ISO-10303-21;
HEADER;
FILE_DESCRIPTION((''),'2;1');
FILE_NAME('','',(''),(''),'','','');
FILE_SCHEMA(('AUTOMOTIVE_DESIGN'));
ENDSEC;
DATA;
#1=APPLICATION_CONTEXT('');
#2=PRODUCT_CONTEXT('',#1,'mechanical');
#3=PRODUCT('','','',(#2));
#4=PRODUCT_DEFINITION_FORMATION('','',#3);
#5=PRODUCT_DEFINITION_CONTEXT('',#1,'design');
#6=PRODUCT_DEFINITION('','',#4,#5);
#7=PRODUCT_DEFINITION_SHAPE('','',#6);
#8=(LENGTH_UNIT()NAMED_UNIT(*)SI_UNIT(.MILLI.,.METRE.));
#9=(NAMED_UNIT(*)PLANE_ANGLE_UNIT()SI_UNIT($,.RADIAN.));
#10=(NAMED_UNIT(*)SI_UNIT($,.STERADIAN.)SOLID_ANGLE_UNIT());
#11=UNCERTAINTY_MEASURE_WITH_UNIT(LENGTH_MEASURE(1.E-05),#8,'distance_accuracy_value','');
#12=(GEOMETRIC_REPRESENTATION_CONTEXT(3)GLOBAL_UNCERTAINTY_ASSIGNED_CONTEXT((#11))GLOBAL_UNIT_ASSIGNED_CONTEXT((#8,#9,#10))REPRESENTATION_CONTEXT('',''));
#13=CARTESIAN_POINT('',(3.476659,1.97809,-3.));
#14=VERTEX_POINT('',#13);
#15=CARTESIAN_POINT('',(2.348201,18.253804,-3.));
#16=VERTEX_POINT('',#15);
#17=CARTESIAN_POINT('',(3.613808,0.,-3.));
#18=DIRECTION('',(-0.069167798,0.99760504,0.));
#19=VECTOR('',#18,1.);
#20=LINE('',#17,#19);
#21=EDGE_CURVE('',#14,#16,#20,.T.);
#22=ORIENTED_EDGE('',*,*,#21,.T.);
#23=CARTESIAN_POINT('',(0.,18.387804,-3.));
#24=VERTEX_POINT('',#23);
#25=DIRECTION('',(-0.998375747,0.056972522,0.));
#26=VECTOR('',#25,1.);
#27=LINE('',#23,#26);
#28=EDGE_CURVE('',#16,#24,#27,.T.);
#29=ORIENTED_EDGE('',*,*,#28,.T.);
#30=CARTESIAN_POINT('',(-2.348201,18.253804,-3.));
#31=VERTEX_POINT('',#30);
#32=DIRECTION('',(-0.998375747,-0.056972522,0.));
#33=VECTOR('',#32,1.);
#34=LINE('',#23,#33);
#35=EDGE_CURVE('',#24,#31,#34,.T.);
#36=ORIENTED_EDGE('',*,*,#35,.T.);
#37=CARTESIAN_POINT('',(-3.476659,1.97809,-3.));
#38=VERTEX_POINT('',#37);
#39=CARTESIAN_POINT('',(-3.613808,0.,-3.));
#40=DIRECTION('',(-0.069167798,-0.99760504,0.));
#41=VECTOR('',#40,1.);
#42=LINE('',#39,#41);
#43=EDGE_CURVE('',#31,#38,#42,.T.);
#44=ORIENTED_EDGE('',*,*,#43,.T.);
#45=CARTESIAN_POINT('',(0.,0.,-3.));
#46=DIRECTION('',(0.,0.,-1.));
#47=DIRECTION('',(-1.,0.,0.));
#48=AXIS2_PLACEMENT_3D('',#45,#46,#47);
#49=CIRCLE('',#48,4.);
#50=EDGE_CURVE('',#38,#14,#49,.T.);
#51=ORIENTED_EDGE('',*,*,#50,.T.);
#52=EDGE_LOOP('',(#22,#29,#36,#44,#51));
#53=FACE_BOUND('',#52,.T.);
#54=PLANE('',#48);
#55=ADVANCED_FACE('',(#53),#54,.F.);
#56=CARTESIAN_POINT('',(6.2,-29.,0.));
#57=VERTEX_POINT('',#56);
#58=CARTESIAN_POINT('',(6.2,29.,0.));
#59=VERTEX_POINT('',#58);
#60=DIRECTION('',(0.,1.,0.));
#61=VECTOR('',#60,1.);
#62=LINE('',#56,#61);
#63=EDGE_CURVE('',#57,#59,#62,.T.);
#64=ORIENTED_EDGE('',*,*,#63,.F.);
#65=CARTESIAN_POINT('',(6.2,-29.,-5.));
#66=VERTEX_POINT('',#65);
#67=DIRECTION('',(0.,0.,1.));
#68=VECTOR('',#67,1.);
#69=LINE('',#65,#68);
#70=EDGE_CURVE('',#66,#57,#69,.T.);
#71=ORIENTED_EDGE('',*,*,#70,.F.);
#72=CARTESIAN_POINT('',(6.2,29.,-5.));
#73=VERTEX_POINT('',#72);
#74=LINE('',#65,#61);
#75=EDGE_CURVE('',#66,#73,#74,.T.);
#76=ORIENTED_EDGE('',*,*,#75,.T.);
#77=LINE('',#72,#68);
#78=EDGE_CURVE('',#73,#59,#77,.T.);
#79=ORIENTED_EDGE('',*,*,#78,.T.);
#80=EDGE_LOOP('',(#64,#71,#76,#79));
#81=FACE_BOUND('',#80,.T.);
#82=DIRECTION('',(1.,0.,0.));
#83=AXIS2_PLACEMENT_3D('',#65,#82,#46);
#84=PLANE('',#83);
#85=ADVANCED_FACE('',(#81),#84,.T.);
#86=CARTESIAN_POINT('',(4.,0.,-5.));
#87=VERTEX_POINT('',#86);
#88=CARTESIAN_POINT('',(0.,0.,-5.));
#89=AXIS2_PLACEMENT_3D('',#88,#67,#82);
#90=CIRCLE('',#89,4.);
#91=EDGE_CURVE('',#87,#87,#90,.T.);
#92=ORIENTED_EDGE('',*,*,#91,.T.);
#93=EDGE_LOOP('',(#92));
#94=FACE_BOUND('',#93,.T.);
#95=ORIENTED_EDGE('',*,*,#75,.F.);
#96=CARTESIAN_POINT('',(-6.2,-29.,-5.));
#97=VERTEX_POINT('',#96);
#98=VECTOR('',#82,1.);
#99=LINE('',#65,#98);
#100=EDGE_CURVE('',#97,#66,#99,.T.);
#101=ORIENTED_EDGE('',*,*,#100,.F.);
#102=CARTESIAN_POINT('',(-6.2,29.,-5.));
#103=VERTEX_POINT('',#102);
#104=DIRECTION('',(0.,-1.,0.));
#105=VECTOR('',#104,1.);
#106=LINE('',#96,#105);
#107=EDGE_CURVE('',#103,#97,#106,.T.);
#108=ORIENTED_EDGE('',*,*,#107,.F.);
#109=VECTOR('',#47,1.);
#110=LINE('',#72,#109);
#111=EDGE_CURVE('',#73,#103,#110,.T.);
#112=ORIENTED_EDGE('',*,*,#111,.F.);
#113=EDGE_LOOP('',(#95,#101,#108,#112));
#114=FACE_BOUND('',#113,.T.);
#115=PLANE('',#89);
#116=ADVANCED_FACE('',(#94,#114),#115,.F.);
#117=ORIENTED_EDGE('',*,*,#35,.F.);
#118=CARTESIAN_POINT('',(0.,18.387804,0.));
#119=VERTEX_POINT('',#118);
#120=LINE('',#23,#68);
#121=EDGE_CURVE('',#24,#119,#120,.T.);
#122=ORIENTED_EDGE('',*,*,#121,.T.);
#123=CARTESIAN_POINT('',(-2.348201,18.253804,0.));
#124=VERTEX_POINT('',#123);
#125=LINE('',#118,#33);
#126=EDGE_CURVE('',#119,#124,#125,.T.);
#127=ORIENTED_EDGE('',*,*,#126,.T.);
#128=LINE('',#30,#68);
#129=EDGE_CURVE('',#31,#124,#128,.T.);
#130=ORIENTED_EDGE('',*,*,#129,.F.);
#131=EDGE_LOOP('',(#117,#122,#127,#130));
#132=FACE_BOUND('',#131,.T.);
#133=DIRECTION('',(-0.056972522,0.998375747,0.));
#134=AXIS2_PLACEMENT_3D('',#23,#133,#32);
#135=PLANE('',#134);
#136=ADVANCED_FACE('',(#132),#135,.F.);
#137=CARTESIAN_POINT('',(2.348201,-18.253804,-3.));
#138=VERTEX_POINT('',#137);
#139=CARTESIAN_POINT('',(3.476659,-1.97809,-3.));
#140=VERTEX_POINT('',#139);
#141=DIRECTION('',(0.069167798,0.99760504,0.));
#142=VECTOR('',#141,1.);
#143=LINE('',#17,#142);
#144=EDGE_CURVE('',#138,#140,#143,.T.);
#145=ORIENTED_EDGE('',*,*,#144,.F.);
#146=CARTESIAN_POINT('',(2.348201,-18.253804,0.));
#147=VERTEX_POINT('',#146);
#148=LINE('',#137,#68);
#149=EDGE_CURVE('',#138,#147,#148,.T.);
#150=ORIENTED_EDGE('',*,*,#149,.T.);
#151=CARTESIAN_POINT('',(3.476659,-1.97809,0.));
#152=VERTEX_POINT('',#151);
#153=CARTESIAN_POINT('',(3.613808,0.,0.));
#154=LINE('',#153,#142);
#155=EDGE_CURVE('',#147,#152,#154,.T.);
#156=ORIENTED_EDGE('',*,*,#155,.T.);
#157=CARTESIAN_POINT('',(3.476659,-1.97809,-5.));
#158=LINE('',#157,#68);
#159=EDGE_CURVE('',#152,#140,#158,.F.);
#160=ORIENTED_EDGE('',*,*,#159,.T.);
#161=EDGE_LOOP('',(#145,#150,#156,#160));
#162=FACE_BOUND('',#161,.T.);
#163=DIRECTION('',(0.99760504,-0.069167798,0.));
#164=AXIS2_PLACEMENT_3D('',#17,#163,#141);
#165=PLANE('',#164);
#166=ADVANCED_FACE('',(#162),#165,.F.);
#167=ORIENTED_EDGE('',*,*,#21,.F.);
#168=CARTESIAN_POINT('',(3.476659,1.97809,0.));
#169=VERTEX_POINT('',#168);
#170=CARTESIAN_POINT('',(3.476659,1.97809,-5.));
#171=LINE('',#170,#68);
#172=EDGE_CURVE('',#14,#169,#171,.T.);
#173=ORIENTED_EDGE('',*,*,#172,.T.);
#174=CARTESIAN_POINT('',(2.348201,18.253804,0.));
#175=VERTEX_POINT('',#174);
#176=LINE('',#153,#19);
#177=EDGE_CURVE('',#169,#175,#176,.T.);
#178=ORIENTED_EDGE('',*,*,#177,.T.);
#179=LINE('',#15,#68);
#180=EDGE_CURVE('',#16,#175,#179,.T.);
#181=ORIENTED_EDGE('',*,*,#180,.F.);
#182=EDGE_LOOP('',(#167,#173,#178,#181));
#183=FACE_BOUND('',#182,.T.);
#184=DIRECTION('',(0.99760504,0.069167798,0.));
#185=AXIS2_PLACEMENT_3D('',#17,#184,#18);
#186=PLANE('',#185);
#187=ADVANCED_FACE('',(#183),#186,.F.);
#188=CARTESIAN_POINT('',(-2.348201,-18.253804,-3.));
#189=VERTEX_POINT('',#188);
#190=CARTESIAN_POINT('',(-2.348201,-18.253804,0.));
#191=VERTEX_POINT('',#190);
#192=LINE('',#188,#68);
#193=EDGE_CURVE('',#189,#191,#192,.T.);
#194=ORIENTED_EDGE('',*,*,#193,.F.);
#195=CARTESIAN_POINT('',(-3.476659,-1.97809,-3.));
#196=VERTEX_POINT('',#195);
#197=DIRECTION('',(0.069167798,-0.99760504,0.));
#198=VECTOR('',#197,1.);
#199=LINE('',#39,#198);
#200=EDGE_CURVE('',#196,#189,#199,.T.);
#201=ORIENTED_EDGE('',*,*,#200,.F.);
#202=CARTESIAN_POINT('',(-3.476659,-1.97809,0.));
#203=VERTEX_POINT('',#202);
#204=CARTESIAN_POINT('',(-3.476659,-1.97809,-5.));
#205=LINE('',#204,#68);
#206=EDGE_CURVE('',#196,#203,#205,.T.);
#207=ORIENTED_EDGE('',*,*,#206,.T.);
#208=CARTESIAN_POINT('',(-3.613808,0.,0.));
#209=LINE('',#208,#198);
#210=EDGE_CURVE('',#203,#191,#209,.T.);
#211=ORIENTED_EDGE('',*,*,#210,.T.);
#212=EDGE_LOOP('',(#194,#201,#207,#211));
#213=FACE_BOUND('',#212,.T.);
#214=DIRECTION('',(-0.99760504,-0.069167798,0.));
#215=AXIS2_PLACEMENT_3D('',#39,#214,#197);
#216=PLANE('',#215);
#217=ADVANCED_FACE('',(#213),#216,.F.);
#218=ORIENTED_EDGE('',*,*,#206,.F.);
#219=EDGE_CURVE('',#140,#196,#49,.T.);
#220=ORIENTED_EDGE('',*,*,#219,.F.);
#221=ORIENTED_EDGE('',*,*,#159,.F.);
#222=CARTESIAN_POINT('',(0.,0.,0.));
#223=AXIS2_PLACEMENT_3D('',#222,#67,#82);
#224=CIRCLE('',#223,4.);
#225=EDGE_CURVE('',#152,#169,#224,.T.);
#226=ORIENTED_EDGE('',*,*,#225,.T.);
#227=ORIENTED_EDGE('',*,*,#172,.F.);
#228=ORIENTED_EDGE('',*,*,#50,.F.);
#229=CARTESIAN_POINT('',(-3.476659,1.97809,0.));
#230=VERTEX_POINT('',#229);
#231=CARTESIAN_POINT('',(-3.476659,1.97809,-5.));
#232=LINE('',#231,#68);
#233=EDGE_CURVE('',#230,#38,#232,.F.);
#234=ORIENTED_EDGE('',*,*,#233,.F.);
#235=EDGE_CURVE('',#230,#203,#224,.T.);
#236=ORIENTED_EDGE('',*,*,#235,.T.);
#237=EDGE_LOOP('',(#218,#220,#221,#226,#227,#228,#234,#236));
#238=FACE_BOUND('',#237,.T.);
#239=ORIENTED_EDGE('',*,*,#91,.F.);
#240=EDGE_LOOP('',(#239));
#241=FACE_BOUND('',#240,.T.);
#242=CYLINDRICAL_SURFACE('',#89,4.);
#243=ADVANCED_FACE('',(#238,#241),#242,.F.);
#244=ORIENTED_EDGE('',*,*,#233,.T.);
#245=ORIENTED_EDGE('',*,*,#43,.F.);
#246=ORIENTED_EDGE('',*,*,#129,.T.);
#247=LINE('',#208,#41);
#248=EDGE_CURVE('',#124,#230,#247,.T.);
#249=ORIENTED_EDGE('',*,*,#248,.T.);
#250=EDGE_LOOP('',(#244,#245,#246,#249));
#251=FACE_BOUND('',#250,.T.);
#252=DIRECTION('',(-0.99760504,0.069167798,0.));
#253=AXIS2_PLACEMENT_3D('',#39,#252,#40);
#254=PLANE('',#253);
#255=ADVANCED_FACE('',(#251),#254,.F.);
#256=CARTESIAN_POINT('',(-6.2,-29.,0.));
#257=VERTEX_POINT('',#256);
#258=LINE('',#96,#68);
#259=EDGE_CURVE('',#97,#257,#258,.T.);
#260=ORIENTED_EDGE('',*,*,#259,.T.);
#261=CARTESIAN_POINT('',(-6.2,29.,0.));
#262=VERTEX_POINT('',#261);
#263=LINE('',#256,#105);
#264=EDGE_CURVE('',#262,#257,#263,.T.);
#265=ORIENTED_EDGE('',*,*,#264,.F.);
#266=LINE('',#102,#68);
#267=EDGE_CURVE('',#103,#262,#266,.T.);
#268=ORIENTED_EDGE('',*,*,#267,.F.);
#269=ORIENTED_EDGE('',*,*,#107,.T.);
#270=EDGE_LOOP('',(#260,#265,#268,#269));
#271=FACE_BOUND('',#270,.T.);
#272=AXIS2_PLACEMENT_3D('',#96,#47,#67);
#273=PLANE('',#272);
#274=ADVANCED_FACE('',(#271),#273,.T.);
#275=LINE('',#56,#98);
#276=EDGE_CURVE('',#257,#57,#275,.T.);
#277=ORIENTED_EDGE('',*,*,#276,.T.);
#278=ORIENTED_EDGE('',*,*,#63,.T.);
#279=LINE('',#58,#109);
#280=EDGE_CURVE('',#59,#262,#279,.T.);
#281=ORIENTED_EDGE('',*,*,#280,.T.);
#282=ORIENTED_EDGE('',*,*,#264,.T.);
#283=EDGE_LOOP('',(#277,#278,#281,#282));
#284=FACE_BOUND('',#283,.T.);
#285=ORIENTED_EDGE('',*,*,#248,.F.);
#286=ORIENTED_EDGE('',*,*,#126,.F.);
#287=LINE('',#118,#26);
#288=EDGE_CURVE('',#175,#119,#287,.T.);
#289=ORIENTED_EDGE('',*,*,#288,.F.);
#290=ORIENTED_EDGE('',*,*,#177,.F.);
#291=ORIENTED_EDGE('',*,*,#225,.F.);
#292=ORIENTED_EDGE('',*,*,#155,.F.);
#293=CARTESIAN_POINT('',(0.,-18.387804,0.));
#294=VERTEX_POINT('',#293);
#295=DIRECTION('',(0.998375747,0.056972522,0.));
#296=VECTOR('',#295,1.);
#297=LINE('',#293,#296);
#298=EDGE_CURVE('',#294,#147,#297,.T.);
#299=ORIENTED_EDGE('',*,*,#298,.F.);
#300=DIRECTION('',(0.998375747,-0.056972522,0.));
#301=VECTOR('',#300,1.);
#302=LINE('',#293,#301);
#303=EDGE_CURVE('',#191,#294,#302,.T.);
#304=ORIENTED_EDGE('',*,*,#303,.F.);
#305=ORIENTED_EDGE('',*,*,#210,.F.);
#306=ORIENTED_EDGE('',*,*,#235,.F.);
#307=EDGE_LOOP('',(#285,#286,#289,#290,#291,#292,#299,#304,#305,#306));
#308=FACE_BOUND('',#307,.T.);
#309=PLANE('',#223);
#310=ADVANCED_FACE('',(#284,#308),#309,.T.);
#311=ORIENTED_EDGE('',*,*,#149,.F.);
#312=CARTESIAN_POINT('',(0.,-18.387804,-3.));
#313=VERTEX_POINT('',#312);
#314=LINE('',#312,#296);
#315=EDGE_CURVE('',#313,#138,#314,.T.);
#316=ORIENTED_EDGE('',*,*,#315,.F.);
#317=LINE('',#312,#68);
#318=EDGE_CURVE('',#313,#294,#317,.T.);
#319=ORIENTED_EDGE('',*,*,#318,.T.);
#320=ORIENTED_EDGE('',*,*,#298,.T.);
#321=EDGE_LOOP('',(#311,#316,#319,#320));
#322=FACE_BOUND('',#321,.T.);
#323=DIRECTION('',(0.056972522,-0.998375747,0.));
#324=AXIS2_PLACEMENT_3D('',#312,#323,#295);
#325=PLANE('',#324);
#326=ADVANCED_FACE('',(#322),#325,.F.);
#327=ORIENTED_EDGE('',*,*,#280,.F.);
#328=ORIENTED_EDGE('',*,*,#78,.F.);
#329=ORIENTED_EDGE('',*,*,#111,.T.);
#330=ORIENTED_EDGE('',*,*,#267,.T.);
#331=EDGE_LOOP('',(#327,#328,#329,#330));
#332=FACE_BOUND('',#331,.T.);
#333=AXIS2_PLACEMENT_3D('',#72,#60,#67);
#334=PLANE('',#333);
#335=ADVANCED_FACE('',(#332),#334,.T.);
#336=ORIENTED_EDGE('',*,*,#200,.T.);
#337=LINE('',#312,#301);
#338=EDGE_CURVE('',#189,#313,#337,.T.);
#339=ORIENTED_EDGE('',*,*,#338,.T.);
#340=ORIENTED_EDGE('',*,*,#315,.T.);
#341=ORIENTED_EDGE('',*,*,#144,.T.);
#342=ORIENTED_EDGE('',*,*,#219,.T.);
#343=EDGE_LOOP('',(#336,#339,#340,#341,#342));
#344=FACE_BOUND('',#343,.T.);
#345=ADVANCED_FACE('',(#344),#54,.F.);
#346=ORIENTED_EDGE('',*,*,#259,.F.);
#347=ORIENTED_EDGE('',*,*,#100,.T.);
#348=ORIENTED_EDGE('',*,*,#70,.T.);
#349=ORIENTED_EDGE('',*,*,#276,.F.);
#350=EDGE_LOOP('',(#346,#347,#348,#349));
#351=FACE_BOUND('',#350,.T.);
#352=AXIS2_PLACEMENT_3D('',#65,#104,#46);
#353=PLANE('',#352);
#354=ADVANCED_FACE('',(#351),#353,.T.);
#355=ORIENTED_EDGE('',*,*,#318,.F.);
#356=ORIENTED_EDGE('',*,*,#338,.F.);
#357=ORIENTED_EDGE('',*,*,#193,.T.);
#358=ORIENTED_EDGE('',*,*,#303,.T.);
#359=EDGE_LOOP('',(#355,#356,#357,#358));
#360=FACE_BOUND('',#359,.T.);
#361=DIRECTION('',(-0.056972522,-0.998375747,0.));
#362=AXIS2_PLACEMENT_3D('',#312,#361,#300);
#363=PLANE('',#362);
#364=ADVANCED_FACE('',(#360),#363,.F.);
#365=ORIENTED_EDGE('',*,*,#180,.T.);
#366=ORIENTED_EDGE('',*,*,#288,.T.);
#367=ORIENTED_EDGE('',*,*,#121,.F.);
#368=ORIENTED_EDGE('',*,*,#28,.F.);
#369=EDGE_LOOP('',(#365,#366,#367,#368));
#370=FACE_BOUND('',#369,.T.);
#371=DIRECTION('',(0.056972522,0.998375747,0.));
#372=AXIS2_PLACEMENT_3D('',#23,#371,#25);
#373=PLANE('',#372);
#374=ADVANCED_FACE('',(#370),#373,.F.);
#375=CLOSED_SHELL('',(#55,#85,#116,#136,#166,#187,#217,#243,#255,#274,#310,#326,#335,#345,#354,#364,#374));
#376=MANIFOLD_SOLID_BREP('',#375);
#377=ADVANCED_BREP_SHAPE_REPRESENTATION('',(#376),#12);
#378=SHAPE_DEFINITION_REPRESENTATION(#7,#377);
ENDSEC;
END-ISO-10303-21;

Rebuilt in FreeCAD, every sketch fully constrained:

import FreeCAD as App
import Part
import Sketcher
from FreeCAD import Vector


def add_polygon(sketch, points):
    """Adds a closed chain of lines whose ends are joined by coincident constraints."""
    first, n = sketch.GeometryCount, len(points)
    for a, b in zip(points, points[1:] + points[:1]):
        sketch.addGeometry(Part.LineSegment(App.Vector(*a, 0), App.Vector(*b, 0)), False)
    for i in range(n):
        sketch.addConstraint(Sketcher.Constraint("Coincident", first + i, 2, first + (i + 1) % n, 1))

doc = App.newDocument("Part")
body = doc.addObject("PartDesign::Body", "Body")

# Sketch on XY plane
sketch1 = body.newObject("Sketcher::SketchObject", "Sketch")
sketch1.AttachmentSupport = (doc.getObject("XY_Plane"), [""])
sketch1.MapMode = "FlatFace"
add_polygon(sketch1, [(-6, 29), (-6, -29), (6, -29), (6, 29)])  # lines 0-3
sketch1.addConstraint(Sketcher.Constraint("Vertical", 0))
sketch1.addConstraint(Sketcher.Constraint("Horizontal", 1))
sketch1.addConstraint(Sketcher.Constraint("Vertical", 2))
sketch1.addConstraint(Sketcher.Constraint("Horizontal", 3))
sketch1.addConstraint(Sketcher.Constraint("Symmetric", 0, 2, 2, 2, -1, 1))
sketch1.addConstraint(Sketcher.Constraint("DistanceY", 0, 2, 0, 1, 58.0))
sketch1.addConstraint(Sketcher.Constraint("DistanceX", 1, 1, 1, 2, 12.4))
pad1 = body.newObject("PartDesign::Pad", "Pad")
pad1.Profile = sketch1
pad1.Length = 5
pad1.Reversed = True

# Sketch on XY plane
sketch2 = body.newObject("Sketcher::SketchObject", "Sketch001")
sketch2.AttachmentSupport = (doc.getObject("XY_Plane"), [""])
sketch2.MapMode = "FlatFace"
add_polygon(sketch2, [(-2.3, 18.3), (-3.6, 0), (-2.3, -18.3), (0, -18.4), (2.3, -18.3), (3.6, 0), (2.3, 18.3), (0, 18.4)])  # lines 0-7
sketch2.addConstraint(Sketcher.Constraint("Symmetric", 0, 2, 4, 2, -1, 1))
sketch2.addConstraint(Sketcher.Constraint("Symmetric", 1, 2, 5, 2, -1, 1))
sketch2.addConstraint(Sketcher.Constraint("Symmetric", 2, 2, 6, 2, -1, 1))
sketch2.addConstraint(Sketcher.Constraint("Symmetric", 3, 2, 7, 2, -1, 1))
sketch2.addConstraint(Sketcher.Constraint("Symmetric", 1, 2, 3, 2, -2))
sketch2.addConstraint(Sketcher.Constraint("PointOnObject", 0, 2, -1))
sketch2.addConstraint(Sketcher.Constraint("PointOnObject", 2, 2, -2))
sketch2.addConstraint(Sketcher.Constraint("DistanceY", 2, 2, 1, 2, 0.134001))
sketch2.addConstraint(Sketcher.Constraint("DistanceX", 1, 2, -1, 1, 2.348202))
sketch2.addConstraint(Sketcher.Constraint("DistanceX", 0, 2, 3, 2, 5.962009))
sketch2.addConstraint(Sketcher.Constraint("DistanceY", 2, 2, 5, 2, 36.641608))
pocket1 = body.newObject("PartDesign::Pocket", "Pocket")
pocket1.Profile = sketch2
pocket1.Length = 3

# Sketch on XY plane
sketch3 = body.newObject("Sketcher::SketchObject", "Sketch002")
sketch3.AttachmentSupport = (doc.getObject("XY_Plane"), [""])
sketch3.MapMode = "FlatFace"
sketch3.addGeometry(Part.Circle(Vector(0, 0, 0), Vector(0, 0, 1), 4), False)
sketch3.addConstraint(Sketcher.Constraint("Coincident", 0, 3, -1, 1))
sketch3.addConstraint(Sketcher.Constraint("Diameter", 0, 8.0))
pocket2 = body.newObject("PartDesign::Pocket", "Pocket001")
pocket2.Profile = sketch3
pocket2.Length = 5

doc.recompute()
